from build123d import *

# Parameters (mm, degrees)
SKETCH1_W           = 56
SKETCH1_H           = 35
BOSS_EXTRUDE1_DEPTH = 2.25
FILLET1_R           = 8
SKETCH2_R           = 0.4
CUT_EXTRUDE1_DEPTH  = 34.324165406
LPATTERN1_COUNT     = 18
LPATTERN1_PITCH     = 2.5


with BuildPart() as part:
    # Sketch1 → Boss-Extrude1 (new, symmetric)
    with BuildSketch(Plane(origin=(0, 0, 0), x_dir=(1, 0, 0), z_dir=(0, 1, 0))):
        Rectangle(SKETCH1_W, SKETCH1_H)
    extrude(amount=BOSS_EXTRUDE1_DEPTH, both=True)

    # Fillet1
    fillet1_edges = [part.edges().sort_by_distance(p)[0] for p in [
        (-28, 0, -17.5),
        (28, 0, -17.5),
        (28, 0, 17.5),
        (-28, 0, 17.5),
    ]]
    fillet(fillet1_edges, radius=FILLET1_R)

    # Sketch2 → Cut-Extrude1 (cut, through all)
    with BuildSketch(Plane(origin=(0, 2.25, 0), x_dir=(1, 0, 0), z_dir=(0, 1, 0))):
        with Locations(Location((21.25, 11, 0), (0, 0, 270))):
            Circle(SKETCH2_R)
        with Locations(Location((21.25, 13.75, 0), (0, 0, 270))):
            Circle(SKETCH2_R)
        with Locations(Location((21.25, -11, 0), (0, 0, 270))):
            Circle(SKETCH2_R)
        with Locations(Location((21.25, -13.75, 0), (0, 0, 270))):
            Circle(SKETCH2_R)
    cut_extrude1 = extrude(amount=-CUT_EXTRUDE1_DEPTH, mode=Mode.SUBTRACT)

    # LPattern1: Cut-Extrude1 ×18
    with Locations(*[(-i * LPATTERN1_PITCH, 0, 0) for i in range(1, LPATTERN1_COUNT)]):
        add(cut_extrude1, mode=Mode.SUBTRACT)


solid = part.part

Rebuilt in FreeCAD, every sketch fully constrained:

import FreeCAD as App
import Part
import Sketcher

V = App.Vector
Q = App.Units.Quantity


def edges_at(feature, points):
    """Names of the edges that pass closest to the given points."""
    edges = feature.Shape.Edges
    near = lambda p: min(range(len(edges)), key=lambda i: edges[i].distToShape(Part.Vertex(*p))[0])
    return sorted({f"Edge{near(p) + 1}" for p in points})

doc = App.newDocument("Part")
body = doc.addObject("PartDesign::Body", "Body")

# Sketch on XZ plane
sketch1 = body.newObject("Sketcher::SketchObject", "Sketch")
sketch1.AttachmentSupport = (doc.getObject("XZ_Plane"), [""])
sketch1.MapMode = "FlatFace"
sketch1.addGeometry([
    Part.LineSegment(V(-28, -18, 0), V(-28, 18, 0)),
    Part.LineSegment(V(-28, 18, 0), V(28, 18, 0)),
    Part.LineSegment(V(28, 18, 0), V(28, -18, 0)),
    Part.LineSegment(V(28, -18, 0), V(-28, -18, 0)),
], False)
sketch1.addConstraint([
    Sketcher.Constraint("Coincident", 0, 2, 1, 1),
    Sketcher.Constraint("Coincident", 1, 2, 2, 1),
    Sketcher.Constraint("Coincident", 2, 2, 3, 1),
    Sketcher.Constraint("Coincident", 3, 2, 0, 1),
    Sketcher.Constraint("Vertical", 0),
    Sketcher.Constraint("Horizontal", 1),
    Sketcher.Constraint("Vertical", 2),
    Sketcher.Constraint("Horizontal", 3),
    Sketcher.Constraint("Symmetric", 0, 2, 2, 2, -1, 1),
    Sketcher.Constraint("DistanceX", 1, 1, 1, 2, Q("56 mm")),
    Sketcher.Constraint("DistanceY", 0, 1, 0, 2, Q("35 mm")),
])
pad1 = body.newObject("PartDesign::Pad", "Pad")
pad1.Profile = sketch1
pad1.Length = 4.5
pad1.Midplane = True
doc.recompute()

fillet = body.newObject("PartDesign::Fillet", "Fillet")
fillet.Base = (pad1, edges_at(pad1, [
    (-28, 0, -17.5),
    (28, 0, -17.5),
    (28, 0, 17.5),
    (-28, 0, 17.5),
]))
fillet.Radius = 8

# Sketch on XZ plane
sketch2 = body.newObject("Sketcher::SketchObject", "Sketch001")
sketch2.AttachmentSupport = (doc.getObject("XZ_Plane"), [""])
sketch2.MapMode = "FlatFace"
sketch2.AttachmentOffset = App.Placement(V(0, 0, -2.25), App.Rotation())
sketch2.addGeometry([
    Part.Circle(V(21.25, -11, 0), V(0, 0, 1), 0.4),
    Part.Circle(V(21.25, -13.75, 0), V(0, 0, 1), 0.4),
    Part.Circle(V(21.25, 11, 0), V(0, 0, 1), 0.4),
    Part.Circle(V(21.25, 13.75, 0), V(0, 0, 1), 0.4),
], False)
sketch2.addConstraint([
    Sketcher.Constraint("Equal", 0, 1),
    Sketcher.Constraint("Equal", 1, 2),
    Sketcher.Constraint("Equal", 2, 3),
    Sketcher.Constraint("Symmetric", 0, 3, 2, 3, -1),
    Sketcher.Constraint("Symmetric", 1, 3, 3, 3, -1),
    Sketcher.Constraint("Vertical", 0, 3, 1, 3),
    Sketcher.Constraint("Diameter", 0, Q("0.8 mm")),
    Sketcher.Constraint("DistanceY", 0, 3, -1, 1, Q("11 mm")),
    Sketcher.Constraint("DistanceY", 1, 3, 3, 3, Q("27.5 mm")),
    Sketcher.Constraint("DistanceX", -1, 1, 0, 3, Q("21.25 mm")),
])
pocket1 = body.newObject("PartDesign::Pocket", "Pocket")
pocket1.Profile = sketch2
pocket1.Type = "ThroughAll"
pocket1.Reversed = True
doc.recompute()

linearpattern = body.newObject("PartDesign::LinearPattern", "LinearPattern")
linearpattern.Originals = [pocket1]
linearpattern.Direction = (doc.getObject("X_Axis"), [""])
linearpattern.Mode = "offset"
linearpattern.Offset = 2.5
linearpattern.Occurrences = 18
linearpattern.Reversed = True
body.Tip = linearpattern

doc.recompute()
